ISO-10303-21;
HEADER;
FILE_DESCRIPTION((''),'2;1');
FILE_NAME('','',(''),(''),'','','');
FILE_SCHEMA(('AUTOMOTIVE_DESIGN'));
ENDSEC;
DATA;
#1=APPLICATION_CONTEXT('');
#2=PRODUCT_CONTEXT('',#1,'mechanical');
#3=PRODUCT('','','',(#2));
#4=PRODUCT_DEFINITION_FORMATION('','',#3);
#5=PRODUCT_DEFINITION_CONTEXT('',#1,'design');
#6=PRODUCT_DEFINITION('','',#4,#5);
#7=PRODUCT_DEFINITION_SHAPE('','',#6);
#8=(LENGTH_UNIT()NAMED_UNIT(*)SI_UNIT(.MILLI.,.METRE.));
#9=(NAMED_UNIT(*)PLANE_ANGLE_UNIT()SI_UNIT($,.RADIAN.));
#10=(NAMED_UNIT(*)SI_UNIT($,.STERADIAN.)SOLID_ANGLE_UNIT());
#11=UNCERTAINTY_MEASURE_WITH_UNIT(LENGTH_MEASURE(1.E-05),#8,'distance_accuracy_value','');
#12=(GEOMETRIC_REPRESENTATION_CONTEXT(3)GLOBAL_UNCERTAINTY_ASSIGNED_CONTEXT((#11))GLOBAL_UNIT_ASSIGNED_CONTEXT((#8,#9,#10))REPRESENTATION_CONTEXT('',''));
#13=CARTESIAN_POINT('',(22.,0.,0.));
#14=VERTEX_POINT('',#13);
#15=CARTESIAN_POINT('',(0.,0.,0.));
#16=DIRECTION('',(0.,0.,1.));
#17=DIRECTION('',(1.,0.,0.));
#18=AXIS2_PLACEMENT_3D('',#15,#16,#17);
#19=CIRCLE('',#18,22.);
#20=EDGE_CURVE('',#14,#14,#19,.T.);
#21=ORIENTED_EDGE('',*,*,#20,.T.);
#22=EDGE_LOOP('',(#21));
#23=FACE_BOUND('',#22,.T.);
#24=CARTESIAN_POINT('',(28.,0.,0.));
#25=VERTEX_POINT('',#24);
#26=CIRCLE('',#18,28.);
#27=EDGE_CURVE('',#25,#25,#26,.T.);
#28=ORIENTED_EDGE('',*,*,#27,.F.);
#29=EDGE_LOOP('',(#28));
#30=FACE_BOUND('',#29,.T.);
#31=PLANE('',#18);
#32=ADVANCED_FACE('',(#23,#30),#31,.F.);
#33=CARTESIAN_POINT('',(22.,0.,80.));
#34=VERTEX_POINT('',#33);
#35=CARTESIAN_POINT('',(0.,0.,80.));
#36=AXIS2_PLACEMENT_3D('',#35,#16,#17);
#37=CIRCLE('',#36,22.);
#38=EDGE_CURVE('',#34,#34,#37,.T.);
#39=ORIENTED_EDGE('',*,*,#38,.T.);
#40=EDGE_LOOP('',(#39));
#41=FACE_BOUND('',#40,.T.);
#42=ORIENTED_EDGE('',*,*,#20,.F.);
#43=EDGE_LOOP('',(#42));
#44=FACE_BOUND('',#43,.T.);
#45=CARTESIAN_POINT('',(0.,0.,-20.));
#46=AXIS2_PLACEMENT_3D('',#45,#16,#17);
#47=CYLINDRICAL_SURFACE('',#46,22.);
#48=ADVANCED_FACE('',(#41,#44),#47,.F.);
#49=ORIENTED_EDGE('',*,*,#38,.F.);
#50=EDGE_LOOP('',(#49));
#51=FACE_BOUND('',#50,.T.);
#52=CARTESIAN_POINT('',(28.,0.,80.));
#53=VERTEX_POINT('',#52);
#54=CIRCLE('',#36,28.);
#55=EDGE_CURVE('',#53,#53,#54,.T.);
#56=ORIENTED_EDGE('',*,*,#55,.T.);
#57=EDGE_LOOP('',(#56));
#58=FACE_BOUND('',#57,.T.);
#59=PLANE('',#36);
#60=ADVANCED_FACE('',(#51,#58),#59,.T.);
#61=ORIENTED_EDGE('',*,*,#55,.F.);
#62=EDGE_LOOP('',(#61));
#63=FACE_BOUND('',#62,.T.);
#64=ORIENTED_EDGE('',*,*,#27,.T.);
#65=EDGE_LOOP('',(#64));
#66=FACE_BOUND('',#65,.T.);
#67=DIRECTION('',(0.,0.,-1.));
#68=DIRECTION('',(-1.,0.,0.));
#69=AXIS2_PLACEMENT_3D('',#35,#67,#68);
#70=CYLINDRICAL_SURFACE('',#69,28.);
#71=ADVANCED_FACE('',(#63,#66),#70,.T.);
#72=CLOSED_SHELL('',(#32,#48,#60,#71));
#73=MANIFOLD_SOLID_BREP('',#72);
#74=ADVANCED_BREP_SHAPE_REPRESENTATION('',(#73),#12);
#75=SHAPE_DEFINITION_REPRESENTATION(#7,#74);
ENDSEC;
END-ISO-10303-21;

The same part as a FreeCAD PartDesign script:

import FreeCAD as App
import Part
import Sketcher

doc = App.newDocument("Part")
body = doc.addObject("PartDesign::Body", "Body")

# Sketch on XY plane
sketch1 = body.newObject("Sketcher::SketchObject", "Sketch")
sketch1.AttachmentSupport = (doc.getObject("XY_Plane"), [""])
sketch1.MapMode = "FlatFace"
sketch1.addGeometry(Part.Circle(App.Vector(0, 0, 0), App.Vector(0, 0, 1), 28), False)
sketch1.addConstraint([
    Sketcher.Constraint("Coincident", 0, 3, -1, 1),
    Sketcher.Constraint("Diameter", 0, 56.0),
])
pad1 = body.newObject("PartDesign::Pad", "Pad")
pad1.Profile = sketch1
pad1.Length = 80

# Sketch on XY plane
sketch2 = body.newObject("Sketcher::SketchObject", "Sketch001")
sketch2.AttachmentSupport = (doc.getObject("XY_Plane"), [""])
sketch2.MapMode = "FlatFace"
sketch2.AttachmentOffset = App.Placement(App.Vector(0, 0, 80), App.Rotation())
sketch2.addGeometry(Part.Circle(App.Vector(0, 0, 0), App.Vector(0, 0, 1), 22), False)
sketch2.addConstraint([
    Sketcher.Constraint("Coincident", 0, 3, -1, 1),
    Sketcher.Constraint("Diameter", 0, 44.0),
])
pocket1 = body.newObject("PartDesign::Pocket", "Pocket")
pocket1.Profile = sketch2
pocket1.Length = 100

doc.recompute()
